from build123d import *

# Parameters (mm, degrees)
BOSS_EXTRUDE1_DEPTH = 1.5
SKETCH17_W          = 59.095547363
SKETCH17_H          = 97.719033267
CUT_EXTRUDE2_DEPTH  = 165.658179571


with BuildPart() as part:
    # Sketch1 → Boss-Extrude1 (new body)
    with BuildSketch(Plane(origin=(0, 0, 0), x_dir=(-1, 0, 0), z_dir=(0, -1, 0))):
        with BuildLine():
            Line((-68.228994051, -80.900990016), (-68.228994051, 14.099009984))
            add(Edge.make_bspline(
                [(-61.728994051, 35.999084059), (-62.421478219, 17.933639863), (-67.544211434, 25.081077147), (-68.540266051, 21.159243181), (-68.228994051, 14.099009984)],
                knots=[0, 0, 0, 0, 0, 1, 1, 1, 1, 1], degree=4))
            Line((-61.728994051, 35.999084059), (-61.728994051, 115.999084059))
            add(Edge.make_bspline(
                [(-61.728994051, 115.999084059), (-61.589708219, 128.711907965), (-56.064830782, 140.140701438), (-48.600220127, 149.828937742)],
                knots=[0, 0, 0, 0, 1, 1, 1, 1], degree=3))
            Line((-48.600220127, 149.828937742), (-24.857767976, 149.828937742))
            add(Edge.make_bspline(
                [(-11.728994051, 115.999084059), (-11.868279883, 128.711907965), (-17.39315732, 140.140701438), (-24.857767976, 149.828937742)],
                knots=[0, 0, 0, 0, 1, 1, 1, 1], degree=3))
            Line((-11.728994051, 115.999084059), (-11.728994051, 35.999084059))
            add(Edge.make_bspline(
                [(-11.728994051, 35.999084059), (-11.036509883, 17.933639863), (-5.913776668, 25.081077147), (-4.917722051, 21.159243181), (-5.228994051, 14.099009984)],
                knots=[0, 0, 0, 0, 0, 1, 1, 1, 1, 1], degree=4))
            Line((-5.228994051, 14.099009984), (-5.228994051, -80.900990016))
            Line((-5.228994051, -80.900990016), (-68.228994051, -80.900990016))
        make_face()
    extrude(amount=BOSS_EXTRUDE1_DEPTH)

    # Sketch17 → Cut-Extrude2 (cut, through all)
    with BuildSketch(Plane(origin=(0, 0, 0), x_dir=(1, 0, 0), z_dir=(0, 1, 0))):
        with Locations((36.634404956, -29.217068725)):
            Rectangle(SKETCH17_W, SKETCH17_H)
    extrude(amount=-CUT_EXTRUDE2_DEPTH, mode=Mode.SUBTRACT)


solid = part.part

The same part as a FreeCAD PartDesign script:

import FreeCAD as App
import Part
import Sketcher
from FreeCAD import Vector
Q = App.Units.Quantity


def add_polygon(sketch, points):
    """Adds a closed chain of lines whose ends are joined by coincident constraints."""
    first, n = sketch.GeometryCount, len(points)
    for a, b in zip(points, points[1:] + points[:1]):
        sketch.addGeometry(Part.LineSegment(App.Vector(*a, 0), App.Vector(*b, 0)), False)
    for i in range(n):
        sketch.addConstraint(Sketcher.Constraint("Coincident", first + i, 2, first + (i + 1) % n, 1))

doc = App.newDocument("Part")
body = doc.addObject("PartDesign::Body", "Body")

sketch1 = body.newObject("Sketcher::SketchObject", "Sketch")
sketch1.AttachmentSupport = (doc.getObject("XZ_Plane"), [""])
sketch1.MapMode = "FlatFace"
sketch1.addGeometry(Part.LineSegment(Vector(68.228994, -14.09901, 0), Vector(68.228994, 80.90099, 0)), False)
sketch1.addGeometry(Part.LineSegment(Vector(68.228994, 80.90099, 0), Vector(5.228994, 80.90099, 0)), False)
sketch1.addGeometry(Part.LineSegment(Vector(5.228994, 80.90099, 0), Vector(5.228994, -14.09901, 0)), False)
sketch1.addGeometry(Part.BSplineCurve([Vector(11.728994, -35.999084, 0), Vector(11.03651, -17.93364, 0), Vector(5.913777, -25.081077, 0), Vector(4.917722, -21.159243, 0), Vector(5.228994, -14.09901, 0)], [5, 5], [0, 1], False, 4, [1, 1, 1, 1, 1], False), False)
sketch1.addGeometry(Part.LineSegment(Vector(11.728994, -35.999084, 0), Vector(11.728994, -115.999084, 0)), False)
sketch1.addGeometry(Part.BSplineCurve([Vector(11.728994, -115.999084, 0), Vector(11.86828, -128.711908, 0), Vector(17.393157, -140.140701, 0), Vector(24.857768, -149.828938, 0)], [4, 4], [0, 1], False, 3, [1, 1, 1, 1], False), False)
sketch1.addGeometry(Part.LineSegment(Vector(24.857768, -149.828938, 0), Vector(48.60022, -149.828938, 0)), False)
sketch1.addGeometry(Part.BSplineCurve([Vector(61.728994, -115.999084, 0), Vector(61.589708, -128.711908, 0), Vector(56.064831, -140.140701, 0), Vector(48.60022, -149.828938, 0)], [4, 4], [0, 1], False, 3, [1, 1, 1, 1], False), False)
sketch1.addGeometry(Part.LineSegment(Vector(61.728994, -115.999084, 0), Vector(61.728994, -35.999084, 0)), False)
sketch1.addGeometry(Part.BSplineCurve([Vector(61.728994, -35.999084, 0), Vector(62.421478, -17.93364, 0), Vector(67.544211, -25.081077, 0), Vector(68.540266, -21.159243, 0), Vector(68.228994, -14.09901, 0)], [5, 5], [0, 1], False, 4, [1, 1, 1, 1, 1], False), False)
sketch1.addConstraint(Sketcher.Constraint("Block", 3))
sketch1.addConstraint(Sketcher.Constraint("Block", 5))
sketch1.addConstraint(Sketcher.Constraint("Block", 7))
sketch1.addConstraint(Sketcher.Constraint("Block", 9))
sketch1.addConstraint(Sketcher.Constraint("Coincident", 0, 2, 1, 1))
sketch1.addConstraint(Sketcher.Constraint("Coincident", 1, 2, 2, 1))
sketch1.addConstraint(Sketcher.Constraint("Coincident", 2, 2, 3, 2))
sketch1.addConstraint(Sketcher.Constraint("Coincident", 3, 1, 4, 1))
sketch1.addConstraint(Sketcher.Constraint("Coincident", 4, 2, 5, 1))
sketch1.addConstraint(Sketcher.Constraint("Coincident", 5, 2, 6, 1))
sketch1.addConstraint(Sketcher.Constraint("Coincident", 6, 2, 7, 2))
sketch1.addConstraint(Sketcher.Constraint("Coincident", 7, 1, 8, 1))
sketch1.addConstraint(Sketcher.Constraint("Coincident", 8, 2, 9, 1))
sketch1.addConstraint(Sketcher.Constraint("Coincident", 9, 2, 0, 1))
sketch1.addConstraint(Sketcher.Constraint("Vertical", 0))
sketch1.addConstraint(Sketcher.Constraint("Horizontal", 1))
sketch1.addConstraint(Sketcher.Constraint("Vertical", 2))
sketch1.addConstraint(Sketcher.Constraint("DistanceY", 0, 1, 0, 2, Q("95 mm")))
pad1 = body.newObject("PartDesign::Pad", "Pad")
pad1.Profile = sketch1
pad1.Length = 1.5

sketch2 = body.newObject("Sketcher::SketchObject", "Sketch001")
sketch2.AttachmentSupport = (doc.getObject("XZ_Plane"), [""])
sketch2.MapMode = "FlatFace"
add_polygon(sketch2, [(7.086631, -19.642448), (7.086631, 78.076585), (66.182179, 78.076585), (66.182179, -19.642448)])
sketch2.addConstraint(Sketcher.Constraint("Vertical", 0))
sketch2.addConstraint(Sketcher.Constraint("Horizontal", 1))
sketch2.addConstraint(Sketcher.Constraint("Vertical", 2))
sketch2.addConstraint(Sketcher.Constraint("Horizontal", 3))
sketch2.addConstraint(Sketcher.Constraint("DistanceX", 1, 1, 1, 2, Q("59.095547 mm")))
sketch2.addConstraint(Sketcher.Constraint("DistanceY", 0, 1, 0, 2, Q("97.719033 mm")))
sketch2.addConstraint(Sketcher.Constraint("DistanceX", -1, 1, 0, 2, Q("7.086631 mm")))
sketch2.addConstraint(Sketcher.Constraint("DistanceY", -1, 1, 0, 2, Q("78.076585 mm")))
pocket1 = body.newObject("PartDesign::Pocket", "Pocket")
pocket1.Profile = sketch2
pocket1.Type = "ThroughAll"
pocket1.Reversed = True

doc.recompute()
